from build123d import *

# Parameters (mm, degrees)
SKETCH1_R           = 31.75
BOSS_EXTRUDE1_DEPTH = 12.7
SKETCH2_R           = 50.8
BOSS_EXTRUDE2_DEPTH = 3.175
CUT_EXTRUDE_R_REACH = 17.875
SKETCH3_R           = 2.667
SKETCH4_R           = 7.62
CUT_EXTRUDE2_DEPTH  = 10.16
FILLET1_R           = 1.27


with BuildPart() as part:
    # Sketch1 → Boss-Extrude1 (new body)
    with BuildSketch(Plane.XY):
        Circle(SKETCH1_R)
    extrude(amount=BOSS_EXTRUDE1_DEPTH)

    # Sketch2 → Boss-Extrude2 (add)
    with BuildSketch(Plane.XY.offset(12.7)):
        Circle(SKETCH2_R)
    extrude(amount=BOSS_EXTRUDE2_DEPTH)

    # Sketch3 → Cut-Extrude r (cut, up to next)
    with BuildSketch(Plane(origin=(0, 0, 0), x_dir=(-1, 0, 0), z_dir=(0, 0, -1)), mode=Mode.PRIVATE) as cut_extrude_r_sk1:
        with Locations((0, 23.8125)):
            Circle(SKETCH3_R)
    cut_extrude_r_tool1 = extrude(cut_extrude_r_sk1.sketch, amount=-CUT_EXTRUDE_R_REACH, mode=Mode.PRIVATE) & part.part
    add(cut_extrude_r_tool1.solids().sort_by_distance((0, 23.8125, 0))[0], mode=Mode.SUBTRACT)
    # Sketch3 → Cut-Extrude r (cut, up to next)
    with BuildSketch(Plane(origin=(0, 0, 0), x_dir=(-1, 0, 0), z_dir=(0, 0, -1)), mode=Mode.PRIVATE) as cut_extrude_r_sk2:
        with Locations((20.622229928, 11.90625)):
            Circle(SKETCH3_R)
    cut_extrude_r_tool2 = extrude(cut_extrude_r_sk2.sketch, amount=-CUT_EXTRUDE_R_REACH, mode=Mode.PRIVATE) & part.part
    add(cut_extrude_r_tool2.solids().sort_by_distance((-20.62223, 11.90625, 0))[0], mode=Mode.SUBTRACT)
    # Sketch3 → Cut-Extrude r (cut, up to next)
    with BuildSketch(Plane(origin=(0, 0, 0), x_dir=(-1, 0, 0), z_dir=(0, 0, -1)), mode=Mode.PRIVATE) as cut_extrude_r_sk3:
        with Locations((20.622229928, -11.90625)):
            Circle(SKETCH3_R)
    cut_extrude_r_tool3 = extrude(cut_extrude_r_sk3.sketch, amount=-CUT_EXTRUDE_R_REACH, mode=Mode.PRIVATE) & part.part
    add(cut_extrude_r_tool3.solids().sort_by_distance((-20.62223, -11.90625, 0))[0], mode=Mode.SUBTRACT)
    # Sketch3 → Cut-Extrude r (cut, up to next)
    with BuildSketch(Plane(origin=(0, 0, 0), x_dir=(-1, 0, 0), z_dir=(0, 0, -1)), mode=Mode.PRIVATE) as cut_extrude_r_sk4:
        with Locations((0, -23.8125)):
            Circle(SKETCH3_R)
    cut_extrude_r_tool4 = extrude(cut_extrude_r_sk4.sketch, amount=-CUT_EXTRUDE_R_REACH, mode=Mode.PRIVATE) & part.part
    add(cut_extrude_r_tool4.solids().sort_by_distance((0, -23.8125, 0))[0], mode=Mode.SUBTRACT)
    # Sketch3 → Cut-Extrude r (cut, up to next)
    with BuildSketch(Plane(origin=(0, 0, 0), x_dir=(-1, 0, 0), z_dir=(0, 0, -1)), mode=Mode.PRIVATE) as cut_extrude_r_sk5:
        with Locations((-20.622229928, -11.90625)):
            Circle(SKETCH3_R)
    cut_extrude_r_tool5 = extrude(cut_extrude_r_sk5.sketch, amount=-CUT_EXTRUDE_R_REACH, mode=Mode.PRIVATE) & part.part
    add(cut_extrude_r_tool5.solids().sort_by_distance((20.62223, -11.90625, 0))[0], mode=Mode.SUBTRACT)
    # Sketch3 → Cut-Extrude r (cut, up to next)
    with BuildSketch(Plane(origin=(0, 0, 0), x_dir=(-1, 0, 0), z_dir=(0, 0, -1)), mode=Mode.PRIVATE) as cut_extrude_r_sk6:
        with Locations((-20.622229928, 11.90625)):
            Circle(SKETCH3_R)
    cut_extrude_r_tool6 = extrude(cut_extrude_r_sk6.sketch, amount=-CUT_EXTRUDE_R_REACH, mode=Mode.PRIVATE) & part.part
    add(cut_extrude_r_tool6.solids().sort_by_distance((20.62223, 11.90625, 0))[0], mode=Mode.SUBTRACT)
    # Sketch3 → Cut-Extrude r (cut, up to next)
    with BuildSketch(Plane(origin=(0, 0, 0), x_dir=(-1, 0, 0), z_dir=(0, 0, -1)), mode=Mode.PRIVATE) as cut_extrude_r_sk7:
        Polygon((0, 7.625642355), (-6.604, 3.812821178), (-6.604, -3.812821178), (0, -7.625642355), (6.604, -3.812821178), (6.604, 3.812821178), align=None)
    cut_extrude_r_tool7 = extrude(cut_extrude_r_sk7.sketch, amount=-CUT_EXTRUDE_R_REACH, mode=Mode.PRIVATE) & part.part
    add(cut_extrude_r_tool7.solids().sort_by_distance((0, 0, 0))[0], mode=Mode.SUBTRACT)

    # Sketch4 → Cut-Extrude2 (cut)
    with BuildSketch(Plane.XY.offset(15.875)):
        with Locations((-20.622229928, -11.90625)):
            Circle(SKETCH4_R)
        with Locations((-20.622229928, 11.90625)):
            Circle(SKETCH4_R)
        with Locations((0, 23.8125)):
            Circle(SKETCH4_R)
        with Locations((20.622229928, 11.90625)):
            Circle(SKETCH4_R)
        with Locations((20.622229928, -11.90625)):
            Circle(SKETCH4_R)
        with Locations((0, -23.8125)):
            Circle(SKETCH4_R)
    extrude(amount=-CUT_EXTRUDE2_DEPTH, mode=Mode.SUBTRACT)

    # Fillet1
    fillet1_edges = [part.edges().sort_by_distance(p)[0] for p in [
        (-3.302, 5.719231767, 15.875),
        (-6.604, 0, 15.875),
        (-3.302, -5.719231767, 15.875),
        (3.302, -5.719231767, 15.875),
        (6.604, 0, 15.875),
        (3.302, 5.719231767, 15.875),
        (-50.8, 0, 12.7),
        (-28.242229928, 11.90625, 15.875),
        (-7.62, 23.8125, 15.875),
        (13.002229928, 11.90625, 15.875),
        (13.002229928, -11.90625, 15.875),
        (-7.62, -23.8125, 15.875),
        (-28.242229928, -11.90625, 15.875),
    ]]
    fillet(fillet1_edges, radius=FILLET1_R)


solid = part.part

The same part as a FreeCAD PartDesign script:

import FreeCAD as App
import Part
import Sketcher
from FreeCAD import Vector
Q = App.Units.Quantity


def edges_at(feature, points):
    """Names of the edges that pass closest to the given points."""
    edges = feature.Shape.Edges
    near = lambda p: min(range(len(edges)), key=lambda i: edges[i].distToShape(Part.Vertex(*p))[0])
    return sorted({f"Edge{near(p) + 1}" for p in points})


def add_polygon(sketch, points):
    """Adds a closed chain of lines whose ends are joined by coincident constraints."""
    first, n = sketch.GeometryCount, len(points)
    for a, b in zip(points, points[1:] + points[:1]):
        sketch.addGeometry(Part.LineSegment(App.Vector(*a, 0), App.Vector(*b, 0)), False)
    for i in range(n):
        sketch.addConstraint(Sketcher.Constraint("Coincident", first + i, 2, first + (i + 1) % n, 1))

doc = App.newDocument("Part")
params = doc.addObject("Spreadsheet::Sheet", "Params")
for row, (alias, value) in enumerate([
    ("sketch1_diameter", "2.5 in"),
    ("pad1_length", "0.5 in"),
    ("sketch2_diameter", "4 in"),
    ("pad2_length", "0.125 in"),
    ("sketch3_diameter", "0.21 in"),
    ("sketch4_diameter", "0.21 in"),
    ("sketch5_diameter", "0.21 in"),
    ("sketch6_diameter", "0.21 in"),
    ("sketch7_diameter", "0.21 in"),
    ("sketch8_diameter", "0.21 in"),
    ("sketch10_diameter", "0.6 in"),
    ("pocket8_length", "0.4 in"),
    ("fillet_radius", "0.05 in"),
], start=1):
    params.set(f"A{row}", alias)
    params.set(f"B{row}", "=" + value)
    params.setAlias(f"B{row}", alias)

body = doc.addObject("PartDesign::Body", "Body")

sketch1 = body.newObject("Sketcher::SketchObject", "Sketch")
sketch1.AttachmentSupport = (doc.getObject("XY_Plane"), [""])
sketch1.MapMode = "FlatFace"
sketch1.addGeometry(Part.Circle(Vector(0, 0, 0), Vector(0, 0, 1), 32), False)
sketch1.addConstraint(Sketcher.Constraint("Coincident", 0, 3, -1, 1))
sketch1.addConstraint(Sketcher.Constraint("Diameter", 0, Q("2.5 in")))
sketch1.setExpression("Constraints[1]", "Params.sketch1_diameter")
pad1 = body.newObject("PartDesign::Pad", "Pad")
pad1.Profile = sketch1
pad1.setExpression("Length", "Params.pad1_length")

sketch2 = body.newObject("Sketcher::SketchObject", "Sketch001")
sketch2.AttachmentSupport = (doc.getObject("XY_Plane"), [""])
sketch2.MapMode = "FlatFace"
sketch2.AttachmentOffset = App.Placement(Vector(0, 0, 0.5 * 25.4), App.Rotation())
sketch2.addGeometry(Part.Circle(Vector(0, 0, 0), Vector(0, 0, 1), 51), False)
sketch2.addConstraint(Sketcher.Constraint("Coincident", 0, 3, -1, 1))
sketch2.addConstraint(Sketcher.Constraint("Diameter", 0, Q("4 in")))
sketch2.setExpression("Constraints[1]", "Params.sketch2_diameter")
pad2 = body.newObject("PartDesign::Pad", "Pad001")
pad2.Profile = sketch2
pad2.setExpression("Length", "Params.pad2_length")

sketch3 = body.newObject("Sketcher::SketchObject", "Sketch002")
sketch3.AttachmentSupport = (doc.getObject("XY_Plane"), [""])
sketch3.MapMode = "FlatFace"
sketch3.addGeometry(Part.Circle(Vector(0, 23.8, 0), Vector(0, 0, 1), 2.7), False)
sketch3.addConstraint(Sketcher.Constraint("PointOnObject", 0, 3, -2))
sketch3.addConstraint(Sketcher.Constraint("Diameter", 0, Q("0.21 in")))
sketch3.addConstraint(Sketcher.Constraint("DistanceY", -1, 1, 0, 3, Q("0.9375 in")))
sketch3.setExpression("Constraints[1]", "Params.sketch3_diameter")
pocket1 = body.newObject("PartDesign::Pocket", "Pocket")
pocket1.Profile = sketch3
pocket1.Type = "UpToFirst"
pocket1.Reversed = True

sketch4 = body.newObject("Sketcher::SketchObject", "Sketch003")
sketch4.AttachmentSupport = (doc.getObject("XY_Plane"), [""])
sketch4.MapMode = "FlatFace"
sketch4.addGeometry(Part.Circle(Vector(-20.6, 11.9, 0), Vector(0, 0, 1), 2.7), False)
sketch4.addConstraint(Sketcher.Constraint("Diameter", 0, Q("0.21 in")))
sketch4.addConstraint(Sketcher.Constraint("DistanceY", -1, 1, 0, 3, Q("0.46875 in")))
sketch4.addConstraint(Sketcher.Constraint("DistanceX", 0, 3, -1, 1, Q("20.62223 mm")))
sketch4.setExpression("Constraints[0]", "Params.sketch4_diameter")
pocket2 = body.newObject("PartDesign::Pocket", "Pocket001")
pocket2.Profile = sketch4
pocket2.Type = "UpToFirst"
pocket2.Reversed = True

sketch5 = body.newObject("Sketcher::SketchObject", "Sketch004")
sketch5.AttachmentSupport = (doc.getObject("XY_Plane"), [""])
sketch5.MapMode = "FlatFace"
sketch5.addGeometry(Part.Circle(Vector(-20.6, -11.9, 0), Vector(0, 0, 1), 2.7), False)
sketch5.addConstraint(Sketcher.Constraint("Diameter", 0, Q("0.21 in")))
sketch5.addConstraint(Sketcher.Constraint("DistanceY", 0, 3, -1, 1, Q("0.46875 in")))
sketch5.addConstraint(Sketcher.Constraint("DistanceX", 0, 3, -1, 1, Q("20.62223 mm")))
sketch5.setExpression("Constraints[0]", "Params.sketch5_diameter")
pocket3 = body.newObject("PartDesign::Pocket", "Pocket002")
pocket3.Profile = sketch5
pocket3.Type = "UpToFirst"
pocket3.Reversed = True

sketch6 = body.newObject("Sketcher::SketchObject", "Sketch005")
sketch6.AttachmentSupport = (doc.getObject("XY_Plane"), [""])
sketch6.MapMode = "FlatFace"
sketch6.addGeometry(Part.Circle(Vector(0, -23.8, 0), Vector(0, 0, 1), 2.7), False)
sketch6.addConstraint(Sketcher.Constraint("PointOnObject", 0, 3, -2))
sketch6.addConstraint(Sketcher.Constraint("Diameter", 0, Q("0.21 in")))
sketch6.addConstraint(Sketcher.Constraint("DistanceY", 0, 3, -1, 1, Q("0.9375 in")))
sketch6.setExpression("Constraints[1]", "Params.sketch6_diameter")
pocket4 = body.newObject("PartDesign::Pocket", "Pocket003")
pocket4.Profile = sketch6
pocket4.Type = "UpToFirst"
pocket4.Reversed = True

sketch7 = body.newObject("Sketcher::SketchObject", "Sketch006")
sketch7.AttachmentSupport = (doc.getObject("XY_Plane"), [""])
sketch7.MapMode = "FlatFace"
sketch7.addGeometry(Part.Circle(Vector(20.6, -11.9, 0), Vector(0, 0, 1), 2.7), False)
sketch7.addConstraint(Sketcher.Constraint("Diameter", 0, Q("0.21 in")))
sketch7.addConstraint(Sketcher.Constraint("DistanceY", 0, 3, -1, 1, Q("0.46875 in")))
sketch7.addConstraint(Sketcher.Constraint("DistanceX", -1, 1, 0, 3, Q("20.62223 mm")))
sketch7.setExpression("Constraints[0]", "Params.sketch7_diameter")
pocket5 = body.newObject("PartDesign::Pocket", "Pocket004")
pocket5.Profile = sketch7
pocket5.Type = "UpToFirst"
pocket5.Reversed = True

sketch8 = body.newObject("Sketcher::SketchObject", "Sketch007")
sketch8.AttachmentSupport = (doc.getObject("XY_Plane"), [""])
sketch8.MapMode = "FlatFace"
sketch8.addGeometry(Part.Circle(Vector(20.6, 11.9, 0), Vector(0, 0, 1), 2.7), False)
sketch8.addConstraint(Sketcher.Constraint("Diameter", 0, Q("0.21 in")))
sketch8.addConstraint(Sketcher.Constraint("DistanceY", -1, 1, 0, 3, Q("0.46875 in")))
sketch8.addConstraint(Sketcher.Constraint("DistanceX", -1, 1, 0, 3, Q("20.62223 mm")))
sketch8.setExpression("Constraints[0]", "Params.sketch8_diameter")
pocket6 = body.newObject("PartDesign::Pocket", "Pocket005")
pocket6.Profile = sketch8
pocket6.Type = "UpToFirst"
pocket6.Reversed = True

sketch9 = body.newObject("Sketcher::SketchObject", "Sketch008")
sketch9.AttachmentSupport = (doc.getObject("XY_Plane"), [""])
sketch9.MapMode = "FlatFace"
add_polygon(sketch9, [(0, 8), (7, 4), (7, -4), (0, -8), (-7, -4), (-7, 4)])
sketch9.addConstraint(Sketcher.Constraint("Vertical", 1))
sketch9.addConstraint(Sketcher.Constraint("Vertical", 4))
sketch9.addConstraint(Sketcher.Constraint("Symmetric", 0, 2, 3, 2, -1, 1))
sketch9.addConstraint(Sketcher.Constraint("Symmetric", 2, 2, 5, 2, -1, 1))
sketch9.addConstraint(Sketcher.Constraint("PointOnObject", 2, 2, -2))
sketch9.addConstraint(Sketcher.Constraint("Parallel", 2, 5))
sketch9.addConstraint(Sketcher.Constraint("Horizontal", 1, 2, 3, 2))
sketch9.addConstraint(Sketcher.Constraint("Angle", 0, Q("-30 deg")))
sketch9.addConstraint(Sketcher.Constraint("DistanceX", -1, 1, 0, 2, Q("0.26 in")))
sketch9.addConstraint(Sketcher.Constraint("DistanceY", 1, 2, 1, 1, Q("7.625642 mm")))
pocket7 = body.newObject("PartDesign::Pocket", "Pocket006")
pocket7.Profile = sketch9
pocket7.Type = "UpToFirst"
pocket7.Reversed = True

sketch10 = body.newObject("Sketcher::SketchObject", "Sketch009")
sketch10.AttachmentSupport = (doc.getObject("XY_Plane"), [""])
sketch10.MapMode = "FlatFace"
sketch10.AttachmentOffset = App.Placement(Vector(0, 0, 0.625 * 25.4), App.Rotation())
sketch10.addGeometry(Part.Circle(Vector(-21, -12, 0), Vector(0, 0, 1), 8), False)
sketch10.addGeometry(Part.Circle(Vector(-21, 12, 0), Vector(0, 0, 1), 8), False)
sketch10.addGeometry(Part.Circle(Vector(0, 24, 0), Vector(0, 0, 1), 8), False)
sketch10.addGeometry(Part.Circle(Vector(21, 12, 0), Vector(0, 0, 1), 8), False)
sketch10.addGeometry(Part.Circle(Vector(21, -12, 0), Vector(0, 0, 1), 8), False)
sketch10.addGeometry(Part.Circle(Vector(0, -24, 0), Vector(0, 0, 1), 8), False)
sketch10.addConstraint(Sketcher.Constraint("Equal", 0, 1))
sketch10.addConstraint(Sketcher.Constraint("Equal", 1, 2))
sketch10.addConstraint(Sketcher.Constraint("Equal", 2, 3))
sketch10.addConstraint(Sketcher.Constraint("Equal", 3, 4))
sketch10.addConstraint(Sketcher.Constraint("Equal", 4, 5))
sketch10.addConstraint(Sketcher.Constraint("Symmetric", 0, 3, 3, 3, -1, 1))
sketch10.addConstraint(Sketcher.Constraint("Symmetric", 1, 3, 4, 3, -1, 1))
sketch10.addConstraint(Sketcher.Constraint("Symmetric", 2, 3, 5, 3, -1, 1))
sketch10.addConstraint(Sketcher.Constraint("Symmetric", 1, 3, 3, 3, -2))
sketch10.addConstraint(Sketcher.Constraint("PointOnObject", 2, 3, -2))
sketch10.addConstraint(Sketcher.Constraint("Diameter", 0, Q("0.6 in")))
sketch10.addConstraint(Sketcher.Constraint("DistanceY", 0, 3, -1, 1, Q("0.46875 in")))
sketch10.addConstraint(Sketcher.Constraint("DistanceY", -1, 1, 2, 3, Q("0.9375 in")))
sketch10.addConstraint(Sketcher.Constraint("DistanceX", 0, 3, -1, 1, Q("20.62223 mm")))
sketch10.setExpression("Constraints[10]", "Params.sketch10_diameter")
pocket8 = body.newObject("PartDesign::Pocket", "Pocket007")
pocket8.Profile = sketch10
pocket8.setExpression("Length", "Params.pocket8_length")
doc.recompute()

fillet = body.newObject("PartDesign::Fillet", "Fillet")
fillet.Base = (pocket8, edges_at(pocket8, [
    (-3.302, 5.719, 15.875),
    (-6.604, 0, 15.875),
    (-3.302, -5.719, 15.875),
    (3.302, -5.719, 15.875),
    (6.604, 0, 15.875),
    (3.302, 5.719, 15.875),
    (-50.8, 0, 12.7),
    (-28.242, 11.906, 15.875),
    (-7.62, 23.812, 15.875),
    (13.002, 11.906, 15.875),
    (13.002, -11.906, 15.875),
    (-7.62, -23.812, 15.875),
    (-28.242, -11.906, 15.875),
]))
fillet.setExpression("Radius", "Params.fillet_radius")

doc.recompute()
